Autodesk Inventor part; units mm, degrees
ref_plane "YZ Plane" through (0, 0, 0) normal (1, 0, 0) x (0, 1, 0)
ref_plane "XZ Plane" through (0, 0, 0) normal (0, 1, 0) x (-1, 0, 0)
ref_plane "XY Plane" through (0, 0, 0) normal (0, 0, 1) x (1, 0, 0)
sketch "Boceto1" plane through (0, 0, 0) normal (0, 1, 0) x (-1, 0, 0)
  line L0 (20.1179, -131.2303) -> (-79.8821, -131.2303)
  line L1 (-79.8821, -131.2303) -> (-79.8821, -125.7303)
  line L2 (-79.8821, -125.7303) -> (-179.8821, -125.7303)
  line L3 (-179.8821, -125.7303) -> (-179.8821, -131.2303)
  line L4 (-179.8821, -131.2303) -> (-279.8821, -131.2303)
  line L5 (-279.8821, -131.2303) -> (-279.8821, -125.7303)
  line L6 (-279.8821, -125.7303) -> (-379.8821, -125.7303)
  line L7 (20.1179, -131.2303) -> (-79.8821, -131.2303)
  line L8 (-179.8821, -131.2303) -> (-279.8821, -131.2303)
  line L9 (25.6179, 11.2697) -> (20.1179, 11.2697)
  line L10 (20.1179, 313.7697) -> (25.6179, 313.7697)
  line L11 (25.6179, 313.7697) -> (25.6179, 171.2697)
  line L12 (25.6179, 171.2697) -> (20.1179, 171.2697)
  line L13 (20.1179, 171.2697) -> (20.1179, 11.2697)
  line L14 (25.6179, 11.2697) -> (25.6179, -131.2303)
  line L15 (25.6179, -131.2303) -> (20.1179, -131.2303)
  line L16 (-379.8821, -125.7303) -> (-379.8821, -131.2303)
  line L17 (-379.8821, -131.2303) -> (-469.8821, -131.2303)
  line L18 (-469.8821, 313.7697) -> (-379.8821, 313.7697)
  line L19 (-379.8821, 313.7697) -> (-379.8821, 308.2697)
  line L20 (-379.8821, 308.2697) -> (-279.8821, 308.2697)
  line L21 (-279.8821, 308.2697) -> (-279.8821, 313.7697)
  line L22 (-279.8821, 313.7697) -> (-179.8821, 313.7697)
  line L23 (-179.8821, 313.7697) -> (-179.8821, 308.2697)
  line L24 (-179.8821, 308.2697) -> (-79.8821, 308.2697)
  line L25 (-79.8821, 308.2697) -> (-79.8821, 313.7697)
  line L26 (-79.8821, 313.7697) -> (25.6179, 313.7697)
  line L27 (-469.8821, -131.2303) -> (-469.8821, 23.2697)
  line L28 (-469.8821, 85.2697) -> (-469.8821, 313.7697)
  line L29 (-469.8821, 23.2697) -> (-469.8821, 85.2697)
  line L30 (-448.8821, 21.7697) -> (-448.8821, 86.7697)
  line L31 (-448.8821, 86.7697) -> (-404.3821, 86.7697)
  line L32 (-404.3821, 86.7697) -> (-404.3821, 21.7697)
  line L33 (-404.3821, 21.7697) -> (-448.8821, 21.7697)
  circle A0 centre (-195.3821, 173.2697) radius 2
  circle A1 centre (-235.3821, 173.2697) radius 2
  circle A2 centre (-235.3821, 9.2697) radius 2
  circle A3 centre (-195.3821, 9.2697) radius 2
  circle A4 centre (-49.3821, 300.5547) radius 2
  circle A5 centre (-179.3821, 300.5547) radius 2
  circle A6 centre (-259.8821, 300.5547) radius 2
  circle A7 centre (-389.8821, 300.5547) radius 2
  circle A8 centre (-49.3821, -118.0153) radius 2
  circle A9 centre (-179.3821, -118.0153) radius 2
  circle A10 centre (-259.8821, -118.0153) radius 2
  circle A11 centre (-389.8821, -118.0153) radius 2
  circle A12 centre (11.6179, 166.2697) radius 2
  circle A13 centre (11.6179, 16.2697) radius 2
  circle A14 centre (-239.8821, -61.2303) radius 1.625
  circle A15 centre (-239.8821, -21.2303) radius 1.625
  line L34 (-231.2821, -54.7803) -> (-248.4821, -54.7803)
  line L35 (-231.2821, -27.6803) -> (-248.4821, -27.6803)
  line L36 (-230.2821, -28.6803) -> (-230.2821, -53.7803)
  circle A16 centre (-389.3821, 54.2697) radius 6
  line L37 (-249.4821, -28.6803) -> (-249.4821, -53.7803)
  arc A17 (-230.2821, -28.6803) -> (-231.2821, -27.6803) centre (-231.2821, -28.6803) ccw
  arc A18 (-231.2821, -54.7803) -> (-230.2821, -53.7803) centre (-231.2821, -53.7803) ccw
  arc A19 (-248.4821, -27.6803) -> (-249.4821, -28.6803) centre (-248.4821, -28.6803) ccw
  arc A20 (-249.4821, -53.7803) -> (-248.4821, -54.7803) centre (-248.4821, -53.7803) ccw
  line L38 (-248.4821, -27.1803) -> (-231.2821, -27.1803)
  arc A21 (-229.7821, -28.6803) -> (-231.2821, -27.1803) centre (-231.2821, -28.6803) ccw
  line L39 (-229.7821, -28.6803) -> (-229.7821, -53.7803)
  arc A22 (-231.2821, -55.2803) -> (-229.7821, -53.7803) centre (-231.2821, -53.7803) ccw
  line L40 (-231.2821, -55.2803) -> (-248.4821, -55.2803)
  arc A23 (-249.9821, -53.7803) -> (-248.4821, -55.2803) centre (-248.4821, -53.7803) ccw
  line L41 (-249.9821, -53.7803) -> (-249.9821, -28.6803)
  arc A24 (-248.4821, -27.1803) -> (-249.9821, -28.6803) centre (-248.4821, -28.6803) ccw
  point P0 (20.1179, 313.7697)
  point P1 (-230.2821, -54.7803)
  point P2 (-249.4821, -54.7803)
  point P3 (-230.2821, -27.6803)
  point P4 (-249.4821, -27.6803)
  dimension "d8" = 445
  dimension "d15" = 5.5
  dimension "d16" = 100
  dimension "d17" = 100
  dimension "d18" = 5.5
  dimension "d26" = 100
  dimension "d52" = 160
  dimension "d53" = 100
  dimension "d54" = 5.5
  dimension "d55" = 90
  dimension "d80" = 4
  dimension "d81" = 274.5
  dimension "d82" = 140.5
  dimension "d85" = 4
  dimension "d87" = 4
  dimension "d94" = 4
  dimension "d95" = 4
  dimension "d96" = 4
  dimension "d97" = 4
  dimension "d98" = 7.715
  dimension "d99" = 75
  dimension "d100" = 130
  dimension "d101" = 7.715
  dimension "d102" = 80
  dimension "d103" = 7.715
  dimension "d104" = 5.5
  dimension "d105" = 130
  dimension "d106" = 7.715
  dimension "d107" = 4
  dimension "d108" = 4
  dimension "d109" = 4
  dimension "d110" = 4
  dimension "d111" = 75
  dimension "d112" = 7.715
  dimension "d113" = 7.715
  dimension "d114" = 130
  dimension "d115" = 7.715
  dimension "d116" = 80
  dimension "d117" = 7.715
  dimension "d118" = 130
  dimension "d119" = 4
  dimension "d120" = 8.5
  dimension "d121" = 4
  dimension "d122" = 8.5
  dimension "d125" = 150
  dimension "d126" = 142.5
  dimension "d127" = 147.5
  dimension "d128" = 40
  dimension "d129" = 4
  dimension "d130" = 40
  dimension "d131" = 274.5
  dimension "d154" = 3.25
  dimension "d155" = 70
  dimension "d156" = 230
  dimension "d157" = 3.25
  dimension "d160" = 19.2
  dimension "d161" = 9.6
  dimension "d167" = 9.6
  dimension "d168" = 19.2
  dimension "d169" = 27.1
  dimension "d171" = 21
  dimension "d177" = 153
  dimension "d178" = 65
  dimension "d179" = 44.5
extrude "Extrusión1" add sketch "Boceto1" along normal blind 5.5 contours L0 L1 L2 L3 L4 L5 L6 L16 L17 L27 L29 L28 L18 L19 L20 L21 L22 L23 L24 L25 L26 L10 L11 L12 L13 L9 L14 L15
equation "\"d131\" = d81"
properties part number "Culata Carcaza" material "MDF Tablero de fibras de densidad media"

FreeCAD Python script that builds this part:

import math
import FreeCAD as App
import Part
import Sketcher

doc = App.newDocument("Part")
body = doc.addObject("PartDesign::Body", "Body")

# Sketch on XZ plane
sketch1 = doc.addObject("Sketcher::SketchObject", "Sketch")
body.addObject(sketch1)
sketch1.AttachmentSupport = (doc.XZ_Plane, [""])
sketch1.MapMode = "FlatFace"
sketch1.addGeometry(Part.LineSegment(App.Vector(79.9, -131.2, 0), App.Vector(-25.6, -131.2, 0)), False)
sketch1.addGeometry(Part.LineSegment(App.Vector(-25.6, -131.2, 0), App.Vector(-25.6, 11.3, 0)), False)
sketch1.addGeometry(Part.LineSegment(App.Vector(-25.6, 11.3, 0), App.Vector(-20.1, 11.3, 0)), False)
sketch1.addGeometry(Part.LineSegment(App.Vector(-20.1, 11.3, 0), App.Vector(-20.1, 171.3, 0)), False)
sketch1.addGeometry(Part.LineSegment(App.Vector(-20.1, 171.3, 0), App.Vector(-25.6, 171.3, 0)), False)
sketch1.addGeometry(Part.LineSegment(App.Vector(-25.6, 171.3, 0), App.Vector(-25.6, 313.8, 0)), False)
sketch1.addGeometry(Part.LineSegment(App.Vector(-25.6, 313.8, 0), App.Vector(79.9, 313.8, 0)), False)
sketch1.addGeometry(Part.LineSegment(App.Vector(79.9, 313.8, 0), App.Vector(79.9, 308.3, 0)), False)
sketch1.addGeometry(Part.LineSegment(App.Vector(79.9, 308.3, 0), App.Vector(179.9, 308.3, 0)), False)
sketch1.addGeometry(Part.LineSegment(App.Vector(179.9, 308.3, 0), App.Vector(179.9, 313.8, 0)), False)
sketch1.addGeometry(Part.LineSegment(App.Vector(179.9, 313.8, 0), App.Vector(279.9, 313.8, 0)), False)
sketch1.addGeometry(Part.LineSegment(App.Vector(279.9, 313.8, 0), App.Vector(279.9, 308.3, 0)), False)
sketch1.addGeometry(Part.LineSegment(App.Vector(279.9, 308.3, 0), App.Vector(379.9, 308.3, 0)), False)
sketch1.addGeometry(Part.LineSegment(App.Vector(379.9, 308.3, 0), App.Vector(379.9, 313.8, 0)), False)
sketch1.addGeometry(Part.LineSegment(App.Vector(379.9, 313.8, 0), App.Vector(469.9, 313.8, 0)), False)
sketch1.addGeometry(Part.LineSegment(App.Vector(469.9, 313.8, 0), App.Vector(469.9, -131.2, 0)), False)
sketch1.addGeometry(Part.LineSegment(App.Vector(469.9, -131.2, 0), App.Vector(379.9, -131.2, 0)), False)
sketch1.addGeometry(Part.LineSegment(App.Vector(379.9, -131.2, 0), App.Vector(379.9, -125.7, 0)), False)
sketch1.addGeometry(Part.LineSegment(App.Vector(379.9, -125.7, 0), App.Vector(279.9, -125.7, 0)), False)
sketch1.addGeometry(Part.LineSegment(App.Vector(279.9, -125.7, 0), App.Vector(279.9, -131.2, 0)), False)
sketch1.addGeometry(Part.LineSegment(App.Vector(279.9, -131.2, 0), App.Vector(179.9, -131.2, 0)), False)
sketch1.addGeometry(Part.LineSegment(App.Vector(179.9, -131.2, 0), App.Vector(179.9, -125.7, 0)), False)
sketch1.addGeometry(Part.LineSegment(App.Vector(179.9, -125.7, 0), App.Vector(79.9, -125.7, 0)), False)
sketch1.addGeometry(Part.LineSegment(App.Vector(79.9, -125.7, 0), App.Vector(79.9, -131.2, 0)), False)
sketch1.addGeometry(Part.Circle(App.Vector(389.9, -118, 0), App.Vector(0, 0, 1), 2), False)
sketch1.addGeometry(Part.Circle(App.Vector(259.9, -118, 0), App.Vector(0, 0, 1), 2), False)
sketch1.addGeometry(Part.Circle(App.Vector(239.9, -61.2, 0), App.Vector(0, 0, 1), 1.6), False)
sketch1.addGeometry(Part.ArcOfCircle(Part.Circle(App.Vector(248.5, -28.7, 0), App.Vector(0, 0, 1), 1.5), math.radians(0), math.radians(90)), False)
sketch1.addGeometry(Part.LineSegment(App.Vector(248.5, -27.2, 0), App.Vector(231.3, -27.2, 0)), False)
sketch1.addGeometry(Part.ArcOfCircle(Part.Circle(App.Vector(231.3, -28.7, 0), App.Vector(0, 0, 1), 1.5), math.radians(90), math.radians(180)), False)
sketch1.addGeometry(Part.LineSegment(App.Vector(229.8, -28.7, 0), App.Vector(229.8, -53.8, 0)), False)
sketch1.addGeometry(Part.ArcOfCircle(Part.Circle(App.Vector(231.3, -53.8, 0), App.Vector(0, 0, 1), 1.5), math.radians(180), math.radians(270)), False)
sketch1.addGeometry(Part.LineSegment(App.Vector(231.3, -55.3, 0), App.Vector(248.5, -55.3, 0)), False)
sketch1.addGeometry(Part.ArcOfCircle(Part.Circle(App.Vector(248.5, -53.8, 0), App.Vector(0, 0, 1), 1.5), math.radians(-90), math.radians(0)), False)
sketch1.addGeometry(Part.LineSegment(App.Vector(250, -53.8, 0), App.Vector(250, -28.7, 0)), False)
sketch1.addGeometry(Part.Circle(App.Vector(239.9, -21.2, 0), App.Vector(0, 0, 1), 1.6), False)
sketch1.addGeometry(Part.LineSegment(App.Vector(404.4, 21.8, 0), App.Vector(448.9, 21.8, 0)), False)
sketch1.addGeometry(Part.LineSegment(App.Vector(448.9, 21.8, 0), App.Vector(448.9, 86.8, 0)), False)
sketch1.addGeometry(Part.LineSegment(App.Vector(448.9, 86.8, 0), App.Vector(404.4, 86.8, 0)), False)
sketch1.addGeometry(Part.LineSegment(App.Vector(404.4, 86.8, 0), App.Vector(404.4, 21.8, 0)), False)
sketch1.addGeometry(Part.Circle(App.Vector(389.4, 54.3, 0), App.Vector(0, 0, 1), 6), False)
sketch1.addGeometry(Part.Circle(App.Vector(235.4, 9.3, 0), App.Vector(0, 0, 1), 2), False)
sketch1.addGeometry(Part.Circle(App.Vector(179.4, -118, 0), App.Vector(0, 0, 1), 2), False)
sketch1.addGeometry(Part.Circle(App.Vector(49.4, -118, 0), App.Vector(0, 0, 1), 2), False)
sketch1.addGeometry(Part.Circle(App.Vector(195.4, 9.3, 0), App.Vector(0, 0, 1), 2), False)
sketch1.addGeometry(Part.Circle(App.Vector(-11.6, 16.3, 0), App.Vector(0, 0, 1), 2), False)
sketch1.addGeometry(Part.Circle(App.Vector(235.4, 173.3, 0), App.Vector(0, 0, 1), 2), False)
sketch1.addGeometry(Part.Circle(App.Vector(389.9, 300.6, 0), App.Vector(0, 0, 1), 2), False)
sketch1.addGeometry(Part.Circle(App.Vector(259.9, 300.6, 0), App.Vector(0, 0, 1), 2), False)
sketch1.addGeometry(Part.Circle(App.Vector(195.4, 173.3, 0), App.Vector(0, 0, 1), 2), False)
sketch1.addGeometry(Part.Circle(App.Vector(-11.6, 166.3, 0), App.Vector(0, 0, 1), 2), False)
sketch1.addGeometry(Part.Circle(App.Vector(179.4, 300.6, 0), App.Vector(0, 0, 1), 2), False)
sketch1.addGeometry(Part.Circle(App.Vector(49.4, 300.6, 0), App.Vector(0, 0, 1), 2), False)
sketch1.addConstraint(Sketcher.Constraint("Coincident", 0, 2, 1, 1))
sketch1.addConstraint(Sketcher.Constraint("Coincident", 1, 2, 2, 1))
sketch1.addConstraint(Sketcher.Constraint("Coincident", 2, 2, 3, 1))
sketch1.addConstraint(Sketcher.Constraint("Coincident", 3, 2, 4, 1))
sketch1.addConstraint(Sketcher.Constraint("Coincident", 4, 2, 5, 1))
sketch1.addConstraint(Sketcher.Constraint("Coincident", 5, 2, 6, 1))
sketch1.addConstraint(Sketcher.Constraint("Coincident", 6, 2, 7, 1))
sketch1.addConstraint(Sketcher.Constraint("Coincident", 7, 2, 8, 1))
sketch1.addConstraint(Sketcher.Constraint("Coincident", 8, 2, 9, 1))
sketch1.addConstraint(Sketcher.Constraint("Coincident", 9, 2, 10, 1))
sketch1.addConstraint(Sketcher.Constraint("Coincident", 10, 2, 11, 1))
sketch1.addConstraint(Sketcher.Constraint("Coincident", 11, 2, 12, 1))
sketch1.addConstraint(Sketcher.Constraint("Coincident", 12, 2, 13, 1))
sketch1.addConstraint(Sketcher.Constraint("Coincident", 13, 2, 14, 1))
sketch1.addConstraint(Sketcher.Constraint("Coincident", 14, 2, 15, 1))
sketch1.addConstraint(Sketcher.Constraint("Coincident", 15, 2, 16, 1))
sketch1.addConstraint(Sketcher.Constraint("Coincident", 16, 2, 17, 1))
sketch1.addConstraint(Sketcher.Constraint("Coincident", 17, 2, 18, 1))
sketch1.addConstraint(Sketcher.Constraint("Coincident", 18, 2, 19, 1))
sketch1.addConstraint(Sketcher.Constraint("Coincident", 19, 2, 20, 1))
sketch1.addConstraint(Sketcher.Constraint("Coincident", 20, 2, 21, 1))
sketch1.addConstraint(Sketcher.Constraint("Coincident", 21, 2, 22, 1))
sketch1.addConstraint(Sketcher.Constraint("Coincident", 22, 2, 23, 1))
sketch1.addConstraint(Sketcher.Constraint("Coincident", 23, 2, 0, 1))
sketch1.addConstraint(Sketcher.Constraint("Tangent", 27, 2, 28, 1))
sketch1.addConstraint(Sketcher.Constraint("Tangent", 28, 2, 29, 1))
sketch1.addConstraint(Sketcher.Constraint("Tangent", 29, 2, 30, 1))
sketch1.addConstraint(Sketcher.Constraint("Tangent", 30, 2, 31, 1))
sketch1.addConstraint(Sketcher.Constraint("Tangent", 31, 2, 32, 1))
sketch1.addConstraint(Sketcher.Constraint("Tangent", 32, 2, 33, 1))
sketch1.addConstraint(Sketcher.Constraint("Tangent", 33, 2, 34, 1))
sketch1.addConstraint(Sketcher.Constraint("Tangent", 34, 2, 27, 1))
sketch1.addConstraint(Sketcher.Constraint("Coincident", 36, 2, 37, 1))
sketch1.addConstraint(Sketcher.Constraint("Coincident", 37, 2, 38, 1))
sketch1.addConstraint(Sketcher.Constraint("Coincident", 38, 2, 39, 1))
sketch1.addConstraint(Sketcher.Constraint("Coincident", 39, 2, 36, 1))
sketch1.addConstraint(Sketcher.Constraint("Horizontal", 0))
sketch1.addConstraint(Sketcher.Constraint("Vertical", 1))
sketch1.addConstraint(Sketcher.Constraint("Horizontal", 2))
sketch1.addConstraint(Sketcher.Constraint("Vertical", 3))
sketch1.addConstraint(Sketcher.Constraint("Horizontal", 4))
sketch1.addConstraint(Sketcher.Constraint("Vertical", 5))
sketch1.addConstraint(Sketcher.Constraint("Horizontal", 6))
sketch1.addConstraint(Sketcher.Constraint("Vertical", 7))
sketch1.addConstraint(Sketcher.Constraint("Horizontal", 8))
sketch1.addConstraint(Sketcher.Constraint("Vertical", 9))
sketch1.addConstraint(Sketcher.Constraint("Horizontal", 10))
sketch1.addConstraint(Sketcher.Constraint("Vertical", 11))
sketch1.addConstraint(Sketcher.Constraint("Horizontal", 12))
sketch1.addConstraint(Sketcher.Constraint("Vertical", 13))
sketch1.addConstraint(Sketcher.Constraint("Horizontal", 14))
sketch1.addConstraint(Sketcher.Constraint("Vertical", 15))
sketch1.addConstraint(Sketcher.Constraint("Horizontal", 16))
sketch1.addConstraint(Sketcher.Constraint("Vertical", 17))
sketch1.addConstraint(Sketcher.Constraint("Horizontal", 18))
sketch1.addConstraint(Sketcher.Constraint("Vertical", 19))
sketch1.addConstraint(Sketcher.Constraint("Horizontal", 20))
sketch1.addConstraint(Sketcher.Constraint("Vertical", 21))
sketch1.addConstraint(Sketcher.Constraint("Horizontal", 22))
sketch1.addConstraint(Sketcher.Constraint("Vertical", 23))
sketch1.addConstraint(Sketcher.Constraint("Horizontal", 28))
sketch1.addConstraint(Sketcher.Constraint("Vertical", 30))
sketch1.addConstraint(Sketcher.Constraint("Horizontal", 32))
sketch1.addConstraint(Sketcher.Constraint("Vertical", 34))
sketch1.addConstraint(Sketcher.Constraint("Horizontal", 36))
sketch1.addConstraint(Sketcher.Constraint("Vertical", 37))
sketch1.addConstraint(Sketcher.Constraint("Horizontal", 38))
sketch1.addConstraint(Sketcher.Constraint("Vertical", 39))
sketch1.addConstraint(Sketcher.Constraint("Equal", 24, 25))
sketch1.addConstraint(Sketcher.Constraint("Equal", 27, 29))
sketch1.addConstraint(Sketcher.Constraint("Equal", 29, 31))
sketch1.addConstraint(Sketcher.Constraint("Equal", 31, 33))
sketch1.addConstraint(Sketcher.Constraint("Equal", 26, 35))
sketch1.addConstraint(Sketcher.Constraint("Equal", 25, 41))
sketch1.addConstraint(Sketcher.Constraint("Equal", 41, 42))
sketch1.addConstraint(Sketcher.Constraint("Equal", 42, 43))
sketch1.addConstraint(Sketcher.Constraint("Equal", 43, 44))
sketch1.addConstraint(Sketcher.Constraint("Equal", 44, 45))
sketch1.addConstraint(Sketcher.Constraint("Equal", 45, 46))
sketch1.addConstraint(Sketcher.Constraint("Equal", 46, 47))
sketch1.addConstraint(Sketcher.Constraint("Equal", 47, 48))
sketch1.addConstraint(Sketcher.Constraint("Equal", 48, 49))
sketch1.addConstraint(Sketcher.Constraint("Equal", 49, 50))
sketch1.addConstraint(Sketcher.Constraint("Equal", 50, 51))
sketch1.addConstraint(Sketcher.Constraint("Equal", 51, 52))
sketch1.addConstraint(Sketcher.Constraint("Horizontal", 24, 3, 25, 3))
sketch1.addConstraint(Sketcher.Constraint("Horizontal", 25, 3, 42, 3))
sketch1.addConstraint(Sketcher.Constraint("Horizontal", 42, 3, 43, 3))
sketch1.addConstraint(Sketcher.Constraint("Horizontal", 41, 3, 44, 3))
sketch1.addConstraint(Sketcher.Constraint("Horizontal", 47, 3, 48, 3))
sketch1.addConstraint(Sketcher.Constraint("Horizontal", 46, 3, 49, 3))
sketch1.addConstraint(Sketcher.Constraint("Horizontal", 48, 3, 51, 3))
sketch1.addConstraint(Sketcher.Constraint("Horizontal", 51, 3, 52, 3))
sketch1.addConstraint(Sketcher.Constraint("Horizontal", 6, 2, 9, 2))
sketch1.addConstraint(Sketcher.Constraint("Horizontal", 8, 2, 11, 2))
sketch1.addConstraint(Sketcher.Constraint("Horizontal", 10, 2, 13, 2))
sketch1.addConstraint(Sketcher.Constraint("Horizontal", 0, 2, 15, 2))
sketch1.addConstraint(Sketcher.Constraint("Horizontal", 16, 2, 19, 2))
sketch1.addConstraint(Sketcher.Constraint("Horizontal", 18, 2, 21, 2))
sketch1.addConstraint(Sketcher.Constraint("Vertical", 26, 3, 35, 3))
sketch1.addConstraint(Sketcher.Constraint("Vertical", 41, 3, 46, 3))
sketch1.addConstraint(Sketcher.Constraint("Vertical", 24, 3, 47, 3))
sketch1.addConstraint(Sketcher.Constraint("Vertical", 25, 3, 48, 3))
sketch1.addConstraint(Sketcher.Constraint("Vertical", 44, 3, 49, 3))
sketch1.addConstraint(Sketcher.Constraint("Vertical", 45, 3, 50, 3))
sketch1.addConstraint(Sketcher.Constraint("Vertical", 42, 3, 51, 3))
sketch1.addConstraint(Sketcher.Constraint("Vertical", 43, 3, 52, 3))
sketch1.addConstraint(Sketcher.Constraint("Vertical", 1, 2, 4, 2))
sketch1.addConstraint(Sketcher.Constraint("Vertical", 13, 2, 16, 2))
sketch1.addConstraint(Sketcher.Constraint("Vertical", 11, 2, 18, 2))
sketch1.addConstraint(Sketcher.Constraint("Vertical", 9, 2, 20, 2))
sketch1.addConstraint(Sketcher.Constraint("Vertical", 7, 2, 22, 2))
sketch1.addConstraint(Sketcher.Constraint("Equal", 8, 10))
sketch1.addConstraint(Sketcher.Constraint("Equal", 10, 12))
sketch1.addConstraint(Sketcher.Constraint("Equal", 1, 5))
sketch1.addConstraint(Sketcher.Constraint("Equal", 4, 7))
sketch1.addConstraint(Sketcher.Constraint("Equal", 13, 17))
sketch1.addConstraint(Sketcher.Constraint("Diameter", 24, 4.0))
sketch1.addConstraint(Sketcher.Constraint("Diameter", 26, 3.25))
sketch1.addConstraint(Sketcher.Constraint("DistanceX", 8, 1, 8, 2, 100.0))
sketch1.addConstraint(Sketcher.Constraint("DistanceX", 14, 1, 14, 2, 90.0))
sketch1.addConstraint(Sketcher.Constraint("DistanceY", 3, 1, 3, 2, 160.0))
sketch1.addConstraint(Sketcher.Constraint("DistanceY", 15, 2, 15, 1, 445.0))
sketch1.addConstraint(Sketcher.Constraint("DistanceY", 37, 1, 37, 2, 65.0))
sketch1.addConstraint(Sketcher.Constraint("Diameter", 40, 12.0))
sketch1.addConstraint(Sketcher.Constraint("DistanceX", 2, 1, 2, 2, 5.5))
sketch1.addConstraint(Sketcher.Constraint("DistanceX", 36, 1, 36, 2, 44.5))
sketch1.addConstraint(Sketcher.Constraint("DistanceX", 25, 3, 24, 3, 130.0))
sketch1.addConstraint(Sketcher.Constraint("DistanceX", 26, 3, 24, 3, 150.0))
sketch1.addConstraint(Sketcher.Constraint("DistanceY", 26, 3, 35, 3, 40.0))
sketch1.addConstraint(Sketcher.Constraint("DistanceX", 43, 3, 42, 3, 130.0))
sketch1.addConstraint(Sketcher.Constraint("DistanceX", 44, 3, 41, 3, 40.0))
sketch1.addConstraint(Sketcher.Constraint("DistanceY", 45, 3, 50, 3, 150.0))
sketch1.addConstraint(Sketcher.Constraint("DistanceX", 0, 2, 43, 3, 75.0))
sketch1.addConstraint(Sketcher.Constraint("DistanceX", 3, 2, 6, 2, 100.0))
sketch1.addConstraint(Sketcher.Constraint("DistanceX", 8, 2, 48, 3, 80.0))
sketch1.addConstraint(Sketcher.Constraint("DistanceY", 15, 2, 26, 3, 70.0))
sketch1.addConstraint(Sketcher.Constraint("DistanceX", 36, 2, 15, 2, 21.0))
sketch1.addConstraint(Sketcher.Constraint("DistanceY", 15, 2, 36, 2, 153.0))
sketch1.addConstraint(Sketcher.Constraint("Radius", 27, 1.5))
sketch1.addConstraint(Sketcher.Constraint("DistanceX", 44, 3, 35, 3, 44.5))
sketch1.addConstraint(Sketcher.Constraint("DistanceY", 0, 2, 45, 3, 147.5))
sketch1.addConstraint(Sketcher.Constraint("DistanceY", 0, 2, 44, 3, 140.5))
sketch1.addConstraint(Sketcher.Constraint("DistanceX", 2, 2, 45, 3, 8.5))
sketch1.addConstraint(Sketcher.Constraint("DistanceX", 28, 2, 28, 1, 17.2))
sketch1.addConstraint(Sketcher.Constraint("DistanceY", 30, 2, 30, 1, 25.1))
sketch1.addConstraint(Sketcher.Constraint("DistanceY", 41, 3, 46, 3, 164.0))
sketch1.addConstraint(Sketcher.Constraint("DistanceX", 46, 3, 40, 3, 154.0))
sketch1.addConstraint(Sketcher.Constraint("DistanceY", 40, 3, 46, 3, 119.0))
sketch1.addConstraint(Sketcher.Constraint("DistanceY", 52, 3, 7, 2, 7.715))
sketch1.addConstraint(Sketcher.Constraint("DistanceY", 17, 2, 24, 3, 7.715))
sketch1.addConstraint(Sketcher.Constraint("DistanceX", 26, 3, 27, 3, 8.6))
sketch1.addConstraint(Sketcher.Constraint("DistanceY", 26, 3, 27, 3, 32.55))
sketch1.addConstraint(Sketcher.Constraint("DistanceX", -1, 1, 24, 3, 389.882))
sketch1.addConstraint(Sketcher.Constraint("DistanceY", 24, 3, -1, 1, 118.0153))
pad1 = doc.addObject("PartDesign::Pad", "Pad")
body.addObject(pad1)
pad1.Profile = sketch1
pad1.Length = 5.5
pad1.Reversed = True

doc.recompute()
